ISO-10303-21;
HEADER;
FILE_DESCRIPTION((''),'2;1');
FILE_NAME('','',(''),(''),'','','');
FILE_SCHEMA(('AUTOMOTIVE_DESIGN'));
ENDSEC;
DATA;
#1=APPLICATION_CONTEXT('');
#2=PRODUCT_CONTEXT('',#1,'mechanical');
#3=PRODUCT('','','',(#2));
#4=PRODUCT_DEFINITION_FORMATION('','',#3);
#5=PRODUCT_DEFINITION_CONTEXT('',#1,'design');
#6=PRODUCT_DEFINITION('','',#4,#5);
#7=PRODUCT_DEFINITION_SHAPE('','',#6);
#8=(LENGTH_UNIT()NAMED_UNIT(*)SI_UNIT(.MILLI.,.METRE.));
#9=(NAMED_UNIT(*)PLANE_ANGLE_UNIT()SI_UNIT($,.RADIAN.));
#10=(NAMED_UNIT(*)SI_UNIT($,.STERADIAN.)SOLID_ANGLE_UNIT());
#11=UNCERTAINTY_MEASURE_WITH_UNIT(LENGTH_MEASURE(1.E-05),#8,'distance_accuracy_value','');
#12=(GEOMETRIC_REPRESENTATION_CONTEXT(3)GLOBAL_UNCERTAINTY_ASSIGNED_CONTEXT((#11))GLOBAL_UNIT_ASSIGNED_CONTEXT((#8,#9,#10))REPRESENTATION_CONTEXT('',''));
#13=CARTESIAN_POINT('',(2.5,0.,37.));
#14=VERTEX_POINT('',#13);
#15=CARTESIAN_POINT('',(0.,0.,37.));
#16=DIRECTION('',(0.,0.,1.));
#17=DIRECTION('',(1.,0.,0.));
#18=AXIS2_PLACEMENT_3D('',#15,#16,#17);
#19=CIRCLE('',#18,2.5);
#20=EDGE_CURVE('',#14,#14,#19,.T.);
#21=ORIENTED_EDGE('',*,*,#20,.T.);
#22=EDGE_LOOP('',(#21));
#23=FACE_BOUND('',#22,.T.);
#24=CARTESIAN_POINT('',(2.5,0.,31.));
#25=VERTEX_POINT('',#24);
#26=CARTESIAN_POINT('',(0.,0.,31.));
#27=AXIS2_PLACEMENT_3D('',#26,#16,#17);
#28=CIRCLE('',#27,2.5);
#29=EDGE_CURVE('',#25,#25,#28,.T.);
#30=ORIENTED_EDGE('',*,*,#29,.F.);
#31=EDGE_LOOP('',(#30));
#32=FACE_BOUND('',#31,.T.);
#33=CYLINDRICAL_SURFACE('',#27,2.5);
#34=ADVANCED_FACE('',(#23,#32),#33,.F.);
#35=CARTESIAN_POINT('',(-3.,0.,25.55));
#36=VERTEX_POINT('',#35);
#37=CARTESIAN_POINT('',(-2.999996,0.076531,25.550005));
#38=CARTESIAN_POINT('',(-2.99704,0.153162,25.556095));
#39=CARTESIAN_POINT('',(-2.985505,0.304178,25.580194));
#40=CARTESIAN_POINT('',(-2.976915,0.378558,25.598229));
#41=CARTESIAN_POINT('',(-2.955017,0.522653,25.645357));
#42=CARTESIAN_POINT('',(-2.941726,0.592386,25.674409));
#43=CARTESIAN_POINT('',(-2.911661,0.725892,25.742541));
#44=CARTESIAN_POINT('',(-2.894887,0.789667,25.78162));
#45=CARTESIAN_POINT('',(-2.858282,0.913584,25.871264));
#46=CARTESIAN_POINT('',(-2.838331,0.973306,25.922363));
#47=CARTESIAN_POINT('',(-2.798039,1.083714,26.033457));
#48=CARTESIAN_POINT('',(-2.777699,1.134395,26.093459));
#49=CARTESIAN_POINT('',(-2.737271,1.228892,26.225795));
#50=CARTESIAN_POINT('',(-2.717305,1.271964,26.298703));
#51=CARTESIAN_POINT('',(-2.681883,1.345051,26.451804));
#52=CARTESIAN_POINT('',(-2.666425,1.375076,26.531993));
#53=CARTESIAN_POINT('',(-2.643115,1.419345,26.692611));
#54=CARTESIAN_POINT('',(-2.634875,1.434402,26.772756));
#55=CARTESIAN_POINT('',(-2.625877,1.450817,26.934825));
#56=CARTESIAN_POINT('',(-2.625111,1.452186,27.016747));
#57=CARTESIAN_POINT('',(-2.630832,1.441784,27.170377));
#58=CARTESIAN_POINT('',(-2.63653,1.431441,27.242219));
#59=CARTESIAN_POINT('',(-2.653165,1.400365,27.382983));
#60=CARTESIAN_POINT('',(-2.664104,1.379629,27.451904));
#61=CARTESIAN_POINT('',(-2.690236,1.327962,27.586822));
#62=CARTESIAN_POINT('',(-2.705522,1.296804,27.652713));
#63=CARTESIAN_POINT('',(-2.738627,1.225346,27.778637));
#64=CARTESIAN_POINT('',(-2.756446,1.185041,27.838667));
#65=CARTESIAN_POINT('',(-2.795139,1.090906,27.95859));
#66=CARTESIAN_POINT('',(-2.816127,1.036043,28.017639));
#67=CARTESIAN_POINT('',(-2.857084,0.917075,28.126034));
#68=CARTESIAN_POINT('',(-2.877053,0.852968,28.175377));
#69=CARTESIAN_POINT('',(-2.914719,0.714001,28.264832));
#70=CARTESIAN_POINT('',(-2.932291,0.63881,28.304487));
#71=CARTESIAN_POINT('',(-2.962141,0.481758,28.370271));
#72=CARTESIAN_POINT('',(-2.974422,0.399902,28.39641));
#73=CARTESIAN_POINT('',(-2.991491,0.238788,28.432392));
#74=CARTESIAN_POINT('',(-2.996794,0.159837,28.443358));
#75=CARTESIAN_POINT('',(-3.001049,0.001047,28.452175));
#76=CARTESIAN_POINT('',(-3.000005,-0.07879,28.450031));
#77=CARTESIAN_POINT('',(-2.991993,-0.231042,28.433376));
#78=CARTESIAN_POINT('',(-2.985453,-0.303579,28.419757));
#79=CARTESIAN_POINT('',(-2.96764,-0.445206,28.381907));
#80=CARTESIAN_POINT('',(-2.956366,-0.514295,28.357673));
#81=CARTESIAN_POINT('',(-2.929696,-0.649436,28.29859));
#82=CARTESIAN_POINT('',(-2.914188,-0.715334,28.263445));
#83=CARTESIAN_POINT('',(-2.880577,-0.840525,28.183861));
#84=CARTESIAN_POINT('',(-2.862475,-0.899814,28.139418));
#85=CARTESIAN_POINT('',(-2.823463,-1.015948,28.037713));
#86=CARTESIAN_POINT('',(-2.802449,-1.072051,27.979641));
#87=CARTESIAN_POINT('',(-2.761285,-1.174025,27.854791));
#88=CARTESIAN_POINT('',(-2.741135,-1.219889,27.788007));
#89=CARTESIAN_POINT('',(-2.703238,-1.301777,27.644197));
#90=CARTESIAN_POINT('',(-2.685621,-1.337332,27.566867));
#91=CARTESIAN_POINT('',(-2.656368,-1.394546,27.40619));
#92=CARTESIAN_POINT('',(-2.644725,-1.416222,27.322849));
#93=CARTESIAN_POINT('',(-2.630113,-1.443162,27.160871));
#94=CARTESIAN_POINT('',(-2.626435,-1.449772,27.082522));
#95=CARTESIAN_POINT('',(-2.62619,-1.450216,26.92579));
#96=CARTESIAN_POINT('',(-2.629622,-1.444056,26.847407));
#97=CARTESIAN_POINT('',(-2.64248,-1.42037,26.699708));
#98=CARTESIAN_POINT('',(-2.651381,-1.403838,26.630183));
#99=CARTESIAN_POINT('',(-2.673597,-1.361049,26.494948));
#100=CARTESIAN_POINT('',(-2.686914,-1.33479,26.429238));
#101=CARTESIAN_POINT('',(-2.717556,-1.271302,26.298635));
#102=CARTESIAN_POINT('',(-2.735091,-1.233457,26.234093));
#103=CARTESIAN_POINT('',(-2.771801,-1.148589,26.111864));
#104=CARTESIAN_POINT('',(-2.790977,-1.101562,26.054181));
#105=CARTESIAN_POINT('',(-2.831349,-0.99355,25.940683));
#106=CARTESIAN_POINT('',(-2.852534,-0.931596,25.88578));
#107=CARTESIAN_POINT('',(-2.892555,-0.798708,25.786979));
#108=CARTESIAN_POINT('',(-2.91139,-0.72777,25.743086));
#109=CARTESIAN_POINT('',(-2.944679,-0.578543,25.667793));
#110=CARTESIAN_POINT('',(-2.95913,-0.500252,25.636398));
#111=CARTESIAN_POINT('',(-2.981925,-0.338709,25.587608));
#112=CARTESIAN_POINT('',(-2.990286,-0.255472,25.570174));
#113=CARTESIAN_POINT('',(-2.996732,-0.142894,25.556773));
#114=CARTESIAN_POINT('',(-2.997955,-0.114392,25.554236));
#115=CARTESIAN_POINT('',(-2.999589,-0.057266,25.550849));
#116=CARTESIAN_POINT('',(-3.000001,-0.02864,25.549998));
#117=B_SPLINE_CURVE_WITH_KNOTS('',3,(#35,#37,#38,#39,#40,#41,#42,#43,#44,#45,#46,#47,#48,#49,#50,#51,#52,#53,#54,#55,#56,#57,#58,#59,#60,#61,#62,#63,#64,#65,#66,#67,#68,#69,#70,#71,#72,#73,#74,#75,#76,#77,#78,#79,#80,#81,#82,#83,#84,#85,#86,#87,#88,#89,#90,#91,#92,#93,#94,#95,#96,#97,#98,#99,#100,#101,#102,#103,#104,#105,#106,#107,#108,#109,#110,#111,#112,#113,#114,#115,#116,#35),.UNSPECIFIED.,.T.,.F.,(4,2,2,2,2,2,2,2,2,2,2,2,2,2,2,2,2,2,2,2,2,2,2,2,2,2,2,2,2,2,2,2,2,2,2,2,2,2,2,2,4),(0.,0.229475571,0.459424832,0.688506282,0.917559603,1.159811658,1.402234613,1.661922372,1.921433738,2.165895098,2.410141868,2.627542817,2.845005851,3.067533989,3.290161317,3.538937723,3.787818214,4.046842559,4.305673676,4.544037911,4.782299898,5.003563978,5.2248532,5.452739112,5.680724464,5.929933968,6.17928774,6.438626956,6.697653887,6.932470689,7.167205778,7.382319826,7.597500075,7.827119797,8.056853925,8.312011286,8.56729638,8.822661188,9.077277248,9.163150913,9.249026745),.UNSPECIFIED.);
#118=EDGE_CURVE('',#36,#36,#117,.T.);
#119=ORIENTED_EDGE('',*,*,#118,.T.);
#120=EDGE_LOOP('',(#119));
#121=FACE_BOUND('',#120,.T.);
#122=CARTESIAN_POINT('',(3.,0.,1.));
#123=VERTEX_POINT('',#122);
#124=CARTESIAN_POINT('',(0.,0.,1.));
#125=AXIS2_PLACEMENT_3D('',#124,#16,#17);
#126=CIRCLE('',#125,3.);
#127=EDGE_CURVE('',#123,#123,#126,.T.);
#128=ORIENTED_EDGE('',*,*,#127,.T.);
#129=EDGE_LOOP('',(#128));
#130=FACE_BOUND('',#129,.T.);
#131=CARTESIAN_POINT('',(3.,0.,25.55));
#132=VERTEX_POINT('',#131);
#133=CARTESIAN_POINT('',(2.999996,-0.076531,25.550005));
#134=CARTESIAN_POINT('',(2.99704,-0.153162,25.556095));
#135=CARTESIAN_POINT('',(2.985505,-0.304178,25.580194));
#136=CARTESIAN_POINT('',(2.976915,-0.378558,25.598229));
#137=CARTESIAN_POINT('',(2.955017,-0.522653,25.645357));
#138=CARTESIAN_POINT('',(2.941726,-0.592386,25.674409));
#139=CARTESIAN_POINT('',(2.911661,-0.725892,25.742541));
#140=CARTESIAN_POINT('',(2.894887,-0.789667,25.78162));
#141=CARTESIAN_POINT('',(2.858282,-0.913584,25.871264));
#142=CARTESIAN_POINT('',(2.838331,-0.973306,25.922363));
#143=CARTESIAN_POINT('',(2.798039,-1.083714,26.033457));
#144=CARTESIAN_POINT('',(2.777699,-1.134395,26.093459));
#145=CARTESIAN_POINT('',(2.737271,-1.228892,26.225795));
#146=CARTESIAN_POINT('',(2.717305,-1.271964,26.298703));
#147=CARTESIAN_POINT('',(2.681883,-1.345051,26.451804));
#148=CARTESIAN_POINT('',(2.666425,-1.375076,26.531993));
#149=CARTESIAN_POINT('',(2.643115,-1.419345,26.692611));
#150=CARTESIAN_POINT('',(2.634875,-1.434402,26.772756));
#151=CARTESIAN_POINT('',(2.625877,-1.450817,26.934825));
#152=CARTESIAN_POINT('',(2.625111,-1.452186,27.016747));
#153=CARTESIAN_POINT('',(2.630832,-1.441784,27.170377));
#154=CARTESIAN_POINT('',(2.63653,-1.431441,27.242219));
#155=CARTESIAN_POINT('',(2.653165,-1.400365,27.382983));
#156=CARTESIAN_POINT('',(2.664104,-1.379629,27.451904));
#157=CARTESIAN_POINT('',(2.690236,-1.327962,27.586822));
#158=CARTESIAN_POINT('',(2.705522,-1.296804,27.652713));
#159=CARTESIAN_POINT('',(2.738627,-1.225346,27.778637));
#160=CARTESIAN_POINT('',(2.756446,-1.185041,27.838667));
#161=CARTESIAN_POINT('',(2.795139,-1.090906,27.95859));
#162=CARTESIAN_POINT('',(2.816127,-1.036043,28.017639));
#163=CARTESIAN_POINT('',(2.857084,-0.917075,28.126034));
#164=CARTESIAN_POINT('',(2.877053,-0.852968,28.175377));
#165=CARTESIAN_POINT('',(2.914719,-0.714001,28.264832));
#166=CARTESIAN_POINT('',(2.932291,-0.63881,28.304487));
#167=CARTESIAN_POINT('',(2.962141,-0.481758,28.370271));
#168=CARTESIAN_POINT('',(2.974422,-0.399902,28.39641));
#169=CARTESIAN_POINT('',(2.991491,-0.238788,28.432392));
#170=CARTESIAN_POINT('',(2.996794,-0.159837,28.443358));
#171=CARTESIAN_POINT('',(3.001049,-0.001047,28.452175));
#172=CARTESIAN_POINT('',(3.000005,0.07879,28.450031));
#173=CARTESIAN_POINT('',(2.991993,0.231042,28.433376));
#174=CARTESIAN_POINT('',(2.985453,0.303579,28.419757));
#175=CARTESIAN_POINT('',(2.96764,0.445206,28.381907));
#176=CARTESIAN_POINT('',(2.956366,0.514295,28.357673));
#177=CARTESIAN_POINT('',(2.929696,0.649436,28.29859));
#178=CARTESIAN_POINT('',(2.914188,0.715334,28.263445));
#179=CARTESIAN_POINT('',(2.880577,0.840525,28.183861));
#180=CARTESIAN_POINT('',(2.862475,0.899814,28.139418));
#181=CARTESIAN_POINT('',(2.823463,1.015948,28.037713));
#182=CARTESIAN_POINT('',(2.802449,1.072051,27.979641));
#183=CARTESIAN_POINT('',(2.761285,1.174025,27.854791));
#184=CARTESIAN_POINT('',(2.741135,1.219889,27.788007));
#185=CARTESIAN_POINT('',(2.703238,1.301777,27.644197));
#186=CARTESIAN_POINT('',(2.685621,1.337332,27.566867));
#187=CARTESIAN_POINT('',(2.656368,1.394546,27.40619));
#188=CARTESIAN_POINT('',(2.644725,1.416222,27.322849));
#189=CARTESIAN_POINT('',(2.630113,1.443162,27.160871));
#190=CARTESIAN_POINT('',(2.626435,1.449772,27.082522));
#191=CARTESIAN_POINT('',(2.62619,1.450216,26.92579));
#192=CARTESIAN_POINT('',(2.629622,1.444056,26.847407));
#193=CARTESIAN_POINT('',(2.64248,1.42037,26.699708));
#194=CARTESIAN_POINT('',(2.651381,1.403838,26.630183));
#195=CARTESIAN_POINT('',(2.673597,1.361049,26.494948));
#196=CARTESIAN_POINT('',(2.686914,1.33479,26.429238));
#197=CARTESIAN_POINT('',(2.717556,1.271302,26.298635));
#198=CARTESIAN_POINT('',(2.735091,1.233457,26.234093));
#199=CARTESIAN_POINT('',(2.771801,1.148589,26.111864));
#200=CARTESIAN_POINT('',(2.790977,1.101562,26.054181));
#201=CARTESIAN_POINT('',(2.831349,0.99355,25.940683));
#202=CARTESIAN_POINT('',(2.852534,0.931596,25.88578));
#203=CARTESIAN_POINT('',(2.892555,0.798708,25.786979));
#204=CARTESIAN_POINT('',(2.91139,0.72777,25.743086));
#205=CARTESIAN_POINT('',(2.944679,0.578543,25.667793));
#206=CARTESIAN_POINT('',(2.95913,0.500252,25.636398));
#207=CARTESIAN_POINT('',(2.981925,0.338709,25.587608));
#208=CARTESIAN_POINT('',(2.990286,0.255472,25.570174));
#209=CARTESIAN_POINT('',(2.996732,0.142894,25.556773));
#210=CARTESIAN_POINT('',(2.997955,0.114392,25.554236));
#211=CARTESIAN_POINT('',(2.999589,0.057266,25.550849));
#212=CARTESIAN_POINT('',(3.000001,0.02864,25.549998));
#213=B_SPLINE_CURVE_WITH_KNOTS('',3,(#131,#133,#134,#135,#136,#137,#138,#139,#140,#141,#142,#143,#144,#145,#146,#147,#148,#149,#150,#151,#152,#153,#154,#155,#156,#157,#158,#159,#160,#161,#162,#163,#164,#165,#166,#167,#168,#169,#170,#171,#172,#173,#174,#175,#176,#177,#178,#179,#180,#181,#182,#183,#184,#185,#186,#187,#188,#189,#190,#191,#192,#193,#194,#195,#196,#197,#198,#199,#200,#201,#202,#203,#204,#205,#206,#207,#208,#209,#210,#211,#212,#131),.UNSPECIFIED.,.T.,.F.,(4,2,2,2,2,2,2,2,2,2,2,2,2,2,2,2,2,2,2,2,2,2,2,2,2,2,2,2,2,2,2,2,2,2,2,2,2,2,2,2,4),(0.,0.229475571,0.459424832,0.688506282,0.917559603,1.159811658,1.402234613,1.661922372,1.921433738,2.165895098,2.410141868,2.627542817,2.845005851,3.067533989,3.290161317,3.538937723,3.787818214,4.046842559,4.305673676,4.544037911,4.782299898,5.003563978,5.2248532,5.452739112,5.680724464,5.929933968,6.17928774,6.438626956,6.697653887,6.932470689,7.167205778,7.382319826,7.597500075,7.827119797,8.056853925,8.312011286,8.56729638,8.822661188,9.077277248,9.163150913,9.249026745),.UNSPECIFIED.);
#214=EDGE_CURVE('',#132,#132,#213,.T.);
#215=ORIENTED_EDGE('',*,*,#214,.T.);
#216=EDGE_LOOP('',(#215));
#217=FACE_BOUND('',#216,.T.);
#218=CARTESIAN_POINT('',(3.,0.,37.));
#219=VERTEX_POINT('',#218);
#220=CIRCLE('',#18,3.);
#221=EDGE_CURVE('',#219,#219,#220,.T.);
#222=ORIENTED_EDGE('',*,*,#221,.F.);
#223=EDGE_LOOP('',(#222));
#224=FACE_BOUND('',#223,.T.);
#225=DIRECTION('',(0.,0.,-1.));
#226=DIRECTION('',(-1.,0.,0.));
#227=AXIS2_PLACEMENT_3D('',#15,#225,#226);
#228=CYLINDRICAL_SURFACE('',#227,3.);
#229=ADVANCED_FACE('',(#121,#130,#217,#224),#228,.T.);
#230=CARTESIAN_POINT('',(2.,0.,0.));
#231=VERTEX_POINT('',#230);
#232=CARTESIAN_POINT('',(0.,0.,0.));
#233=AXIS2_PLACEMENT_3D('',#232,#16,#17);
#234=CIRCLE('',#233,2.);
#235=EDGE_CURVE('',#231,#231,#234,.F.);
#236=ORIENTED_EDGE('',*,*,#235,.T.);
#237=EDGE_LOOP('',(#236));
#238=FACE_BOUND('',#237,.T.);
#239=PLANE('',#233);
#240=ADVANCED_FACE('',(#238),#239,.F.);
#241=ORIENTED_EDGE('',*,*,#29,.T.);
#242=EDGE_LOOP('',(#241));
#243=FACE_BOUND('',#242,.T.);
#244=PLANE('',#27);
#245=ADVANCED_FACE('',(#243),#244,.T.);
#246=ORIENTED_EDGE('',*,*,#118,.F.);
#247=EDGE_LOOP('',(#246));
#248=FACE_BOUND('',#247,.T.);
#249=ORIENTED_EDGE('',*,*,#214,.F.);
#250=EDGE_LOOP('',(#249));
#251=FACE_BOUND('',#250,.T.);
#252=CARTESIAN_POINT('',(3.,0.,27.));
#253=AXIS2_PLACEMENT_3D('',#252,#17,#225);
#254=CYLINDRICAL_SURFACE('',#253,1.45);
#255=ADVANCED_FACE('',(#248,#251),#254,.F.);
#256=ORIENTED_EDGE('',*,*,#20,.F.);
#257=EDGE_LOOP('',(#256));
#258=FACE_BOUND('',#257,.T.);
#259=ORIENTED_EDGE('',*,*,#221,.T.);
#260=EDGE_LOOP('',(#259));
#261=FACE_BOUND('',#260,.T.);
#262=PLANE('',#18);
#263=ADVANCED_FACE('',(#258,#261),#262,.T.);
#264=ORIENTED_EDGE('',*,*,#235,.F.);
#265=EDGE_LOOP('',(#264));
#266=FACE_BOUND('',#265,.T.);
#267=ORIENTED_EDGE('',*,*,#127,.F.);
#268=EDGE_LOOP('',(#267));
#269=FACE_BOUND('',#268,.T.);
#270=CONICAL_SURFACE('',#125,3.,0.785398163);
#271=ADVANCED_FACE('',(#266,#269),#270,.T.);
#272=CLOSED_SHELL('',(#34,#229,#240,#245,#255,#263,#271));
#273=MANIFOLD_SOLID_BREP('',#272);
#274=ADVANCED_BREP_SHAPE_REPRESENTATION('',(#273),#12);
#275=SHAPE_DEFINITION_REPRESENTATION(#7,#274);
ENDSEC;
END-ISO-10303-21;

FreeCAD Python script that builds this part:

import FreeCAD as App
import Part
import Sketcher

V = App.Vector


def edges_at(feature, points):
    """Names of the edges that pass closest to the given points."""
    edges = feature.Shape.Edges
    near = lambda p: min(range(len(edges)), key=lambda i: edges[i].distToShape(Part.Vertex(*p))[0])
    return sorted({f"Edge{near(p) + 1}" for p in points})

doc = App.newDocument("Part")
body = doc.addObject("PartDesign::Body", "Body")

# Sketch on XY plane
sketch1 = body.newObject("Sketcher::SketchObject", "Sketch")
sketch1.AttachmentSupport = (doc.getObject("XY_Plane"), [""])
sketch1.MapMode = "FlatFace"
sketch1.addGeometry(Part.Circle(V(0, 0, 0), V(0, 0, 1), 3), False)
sketch1.addConstraint([
    Sketcher.Constraint("Coincident", 0, 3, -1, 1),
    Sketcher.Constraint("Diameter", 0, 6.0),
])
pad1 = body.newObject("PartDesign::Pad", "Pad")
pad1.Profile = sketch1
pad1.Length = 37

# Sketch on XY plane
sketch2 = body.newObject("Sketcher::SketchObject", "Sketch001")
sketch2.AttachmentSupport = (doc.getObject("XY_Plane"), [""])
sketch2.MapMode = "FlatFace"
sketch2.AttachmentOffset = App.Placement(V(0, 0, 37), App.Rotation())
sketch2.addGeometry(Part.Circle(V(0, 0, 0), V(0, 0, 1), 2.5), False)
sketch2.addConstraint([
    Sketcher.Constraint("Coincident", 0, 3, -1, 1),
    Sketcher.Constraint("Diameter", 0, 5.0),
])
pocket1 = body.newObject("PartDesign::Pocket", "Pocket")
pocket1.Profile = sketch2
pocket1.Length = 6
doc.recompute()

chamfer = body.newObject("PartDesign::Chamfer", "Chamfer")
chamfer.Base = (pocket1, edges_at(pocket1, [(-3, 0, 0)]))
chamfer.Size = 1

# Sketch on YZ plane
sketch3 = body.newObject("Sketcher::SketchObject", "Sketch002")
sketch3.AttachmentSupport = (doc.getObject("YZ_Plane"), [""])
sketch3.MapMode = "FlatFace"
sketch3.AttachmentOffset = App.Placement(V(0, 0, 3), App.Rotation())
sketch3.addGeometry(Part.Circle(V(0, 27, 0), V(0, 0, 1), 1.4), False)
sketch3.addConstraint([
    Sketcher.Constraint("PointOnObject", 0, 3, -2),
    Sketcher.Constraint("Diameter", 0, 2.9),
    Sketcher.Constraint("DistanceY", -1, 1, 0, 3, 27.0),
])
doc.recompute()
hole = body.newObject("PartDesign::Hole", "Hole")
hole.Profile = sketch3
hole.ThreadType = "None"
hole.Diameter = 2.9
hole.DepthType = "ThroughAll"

doc.recompute()
